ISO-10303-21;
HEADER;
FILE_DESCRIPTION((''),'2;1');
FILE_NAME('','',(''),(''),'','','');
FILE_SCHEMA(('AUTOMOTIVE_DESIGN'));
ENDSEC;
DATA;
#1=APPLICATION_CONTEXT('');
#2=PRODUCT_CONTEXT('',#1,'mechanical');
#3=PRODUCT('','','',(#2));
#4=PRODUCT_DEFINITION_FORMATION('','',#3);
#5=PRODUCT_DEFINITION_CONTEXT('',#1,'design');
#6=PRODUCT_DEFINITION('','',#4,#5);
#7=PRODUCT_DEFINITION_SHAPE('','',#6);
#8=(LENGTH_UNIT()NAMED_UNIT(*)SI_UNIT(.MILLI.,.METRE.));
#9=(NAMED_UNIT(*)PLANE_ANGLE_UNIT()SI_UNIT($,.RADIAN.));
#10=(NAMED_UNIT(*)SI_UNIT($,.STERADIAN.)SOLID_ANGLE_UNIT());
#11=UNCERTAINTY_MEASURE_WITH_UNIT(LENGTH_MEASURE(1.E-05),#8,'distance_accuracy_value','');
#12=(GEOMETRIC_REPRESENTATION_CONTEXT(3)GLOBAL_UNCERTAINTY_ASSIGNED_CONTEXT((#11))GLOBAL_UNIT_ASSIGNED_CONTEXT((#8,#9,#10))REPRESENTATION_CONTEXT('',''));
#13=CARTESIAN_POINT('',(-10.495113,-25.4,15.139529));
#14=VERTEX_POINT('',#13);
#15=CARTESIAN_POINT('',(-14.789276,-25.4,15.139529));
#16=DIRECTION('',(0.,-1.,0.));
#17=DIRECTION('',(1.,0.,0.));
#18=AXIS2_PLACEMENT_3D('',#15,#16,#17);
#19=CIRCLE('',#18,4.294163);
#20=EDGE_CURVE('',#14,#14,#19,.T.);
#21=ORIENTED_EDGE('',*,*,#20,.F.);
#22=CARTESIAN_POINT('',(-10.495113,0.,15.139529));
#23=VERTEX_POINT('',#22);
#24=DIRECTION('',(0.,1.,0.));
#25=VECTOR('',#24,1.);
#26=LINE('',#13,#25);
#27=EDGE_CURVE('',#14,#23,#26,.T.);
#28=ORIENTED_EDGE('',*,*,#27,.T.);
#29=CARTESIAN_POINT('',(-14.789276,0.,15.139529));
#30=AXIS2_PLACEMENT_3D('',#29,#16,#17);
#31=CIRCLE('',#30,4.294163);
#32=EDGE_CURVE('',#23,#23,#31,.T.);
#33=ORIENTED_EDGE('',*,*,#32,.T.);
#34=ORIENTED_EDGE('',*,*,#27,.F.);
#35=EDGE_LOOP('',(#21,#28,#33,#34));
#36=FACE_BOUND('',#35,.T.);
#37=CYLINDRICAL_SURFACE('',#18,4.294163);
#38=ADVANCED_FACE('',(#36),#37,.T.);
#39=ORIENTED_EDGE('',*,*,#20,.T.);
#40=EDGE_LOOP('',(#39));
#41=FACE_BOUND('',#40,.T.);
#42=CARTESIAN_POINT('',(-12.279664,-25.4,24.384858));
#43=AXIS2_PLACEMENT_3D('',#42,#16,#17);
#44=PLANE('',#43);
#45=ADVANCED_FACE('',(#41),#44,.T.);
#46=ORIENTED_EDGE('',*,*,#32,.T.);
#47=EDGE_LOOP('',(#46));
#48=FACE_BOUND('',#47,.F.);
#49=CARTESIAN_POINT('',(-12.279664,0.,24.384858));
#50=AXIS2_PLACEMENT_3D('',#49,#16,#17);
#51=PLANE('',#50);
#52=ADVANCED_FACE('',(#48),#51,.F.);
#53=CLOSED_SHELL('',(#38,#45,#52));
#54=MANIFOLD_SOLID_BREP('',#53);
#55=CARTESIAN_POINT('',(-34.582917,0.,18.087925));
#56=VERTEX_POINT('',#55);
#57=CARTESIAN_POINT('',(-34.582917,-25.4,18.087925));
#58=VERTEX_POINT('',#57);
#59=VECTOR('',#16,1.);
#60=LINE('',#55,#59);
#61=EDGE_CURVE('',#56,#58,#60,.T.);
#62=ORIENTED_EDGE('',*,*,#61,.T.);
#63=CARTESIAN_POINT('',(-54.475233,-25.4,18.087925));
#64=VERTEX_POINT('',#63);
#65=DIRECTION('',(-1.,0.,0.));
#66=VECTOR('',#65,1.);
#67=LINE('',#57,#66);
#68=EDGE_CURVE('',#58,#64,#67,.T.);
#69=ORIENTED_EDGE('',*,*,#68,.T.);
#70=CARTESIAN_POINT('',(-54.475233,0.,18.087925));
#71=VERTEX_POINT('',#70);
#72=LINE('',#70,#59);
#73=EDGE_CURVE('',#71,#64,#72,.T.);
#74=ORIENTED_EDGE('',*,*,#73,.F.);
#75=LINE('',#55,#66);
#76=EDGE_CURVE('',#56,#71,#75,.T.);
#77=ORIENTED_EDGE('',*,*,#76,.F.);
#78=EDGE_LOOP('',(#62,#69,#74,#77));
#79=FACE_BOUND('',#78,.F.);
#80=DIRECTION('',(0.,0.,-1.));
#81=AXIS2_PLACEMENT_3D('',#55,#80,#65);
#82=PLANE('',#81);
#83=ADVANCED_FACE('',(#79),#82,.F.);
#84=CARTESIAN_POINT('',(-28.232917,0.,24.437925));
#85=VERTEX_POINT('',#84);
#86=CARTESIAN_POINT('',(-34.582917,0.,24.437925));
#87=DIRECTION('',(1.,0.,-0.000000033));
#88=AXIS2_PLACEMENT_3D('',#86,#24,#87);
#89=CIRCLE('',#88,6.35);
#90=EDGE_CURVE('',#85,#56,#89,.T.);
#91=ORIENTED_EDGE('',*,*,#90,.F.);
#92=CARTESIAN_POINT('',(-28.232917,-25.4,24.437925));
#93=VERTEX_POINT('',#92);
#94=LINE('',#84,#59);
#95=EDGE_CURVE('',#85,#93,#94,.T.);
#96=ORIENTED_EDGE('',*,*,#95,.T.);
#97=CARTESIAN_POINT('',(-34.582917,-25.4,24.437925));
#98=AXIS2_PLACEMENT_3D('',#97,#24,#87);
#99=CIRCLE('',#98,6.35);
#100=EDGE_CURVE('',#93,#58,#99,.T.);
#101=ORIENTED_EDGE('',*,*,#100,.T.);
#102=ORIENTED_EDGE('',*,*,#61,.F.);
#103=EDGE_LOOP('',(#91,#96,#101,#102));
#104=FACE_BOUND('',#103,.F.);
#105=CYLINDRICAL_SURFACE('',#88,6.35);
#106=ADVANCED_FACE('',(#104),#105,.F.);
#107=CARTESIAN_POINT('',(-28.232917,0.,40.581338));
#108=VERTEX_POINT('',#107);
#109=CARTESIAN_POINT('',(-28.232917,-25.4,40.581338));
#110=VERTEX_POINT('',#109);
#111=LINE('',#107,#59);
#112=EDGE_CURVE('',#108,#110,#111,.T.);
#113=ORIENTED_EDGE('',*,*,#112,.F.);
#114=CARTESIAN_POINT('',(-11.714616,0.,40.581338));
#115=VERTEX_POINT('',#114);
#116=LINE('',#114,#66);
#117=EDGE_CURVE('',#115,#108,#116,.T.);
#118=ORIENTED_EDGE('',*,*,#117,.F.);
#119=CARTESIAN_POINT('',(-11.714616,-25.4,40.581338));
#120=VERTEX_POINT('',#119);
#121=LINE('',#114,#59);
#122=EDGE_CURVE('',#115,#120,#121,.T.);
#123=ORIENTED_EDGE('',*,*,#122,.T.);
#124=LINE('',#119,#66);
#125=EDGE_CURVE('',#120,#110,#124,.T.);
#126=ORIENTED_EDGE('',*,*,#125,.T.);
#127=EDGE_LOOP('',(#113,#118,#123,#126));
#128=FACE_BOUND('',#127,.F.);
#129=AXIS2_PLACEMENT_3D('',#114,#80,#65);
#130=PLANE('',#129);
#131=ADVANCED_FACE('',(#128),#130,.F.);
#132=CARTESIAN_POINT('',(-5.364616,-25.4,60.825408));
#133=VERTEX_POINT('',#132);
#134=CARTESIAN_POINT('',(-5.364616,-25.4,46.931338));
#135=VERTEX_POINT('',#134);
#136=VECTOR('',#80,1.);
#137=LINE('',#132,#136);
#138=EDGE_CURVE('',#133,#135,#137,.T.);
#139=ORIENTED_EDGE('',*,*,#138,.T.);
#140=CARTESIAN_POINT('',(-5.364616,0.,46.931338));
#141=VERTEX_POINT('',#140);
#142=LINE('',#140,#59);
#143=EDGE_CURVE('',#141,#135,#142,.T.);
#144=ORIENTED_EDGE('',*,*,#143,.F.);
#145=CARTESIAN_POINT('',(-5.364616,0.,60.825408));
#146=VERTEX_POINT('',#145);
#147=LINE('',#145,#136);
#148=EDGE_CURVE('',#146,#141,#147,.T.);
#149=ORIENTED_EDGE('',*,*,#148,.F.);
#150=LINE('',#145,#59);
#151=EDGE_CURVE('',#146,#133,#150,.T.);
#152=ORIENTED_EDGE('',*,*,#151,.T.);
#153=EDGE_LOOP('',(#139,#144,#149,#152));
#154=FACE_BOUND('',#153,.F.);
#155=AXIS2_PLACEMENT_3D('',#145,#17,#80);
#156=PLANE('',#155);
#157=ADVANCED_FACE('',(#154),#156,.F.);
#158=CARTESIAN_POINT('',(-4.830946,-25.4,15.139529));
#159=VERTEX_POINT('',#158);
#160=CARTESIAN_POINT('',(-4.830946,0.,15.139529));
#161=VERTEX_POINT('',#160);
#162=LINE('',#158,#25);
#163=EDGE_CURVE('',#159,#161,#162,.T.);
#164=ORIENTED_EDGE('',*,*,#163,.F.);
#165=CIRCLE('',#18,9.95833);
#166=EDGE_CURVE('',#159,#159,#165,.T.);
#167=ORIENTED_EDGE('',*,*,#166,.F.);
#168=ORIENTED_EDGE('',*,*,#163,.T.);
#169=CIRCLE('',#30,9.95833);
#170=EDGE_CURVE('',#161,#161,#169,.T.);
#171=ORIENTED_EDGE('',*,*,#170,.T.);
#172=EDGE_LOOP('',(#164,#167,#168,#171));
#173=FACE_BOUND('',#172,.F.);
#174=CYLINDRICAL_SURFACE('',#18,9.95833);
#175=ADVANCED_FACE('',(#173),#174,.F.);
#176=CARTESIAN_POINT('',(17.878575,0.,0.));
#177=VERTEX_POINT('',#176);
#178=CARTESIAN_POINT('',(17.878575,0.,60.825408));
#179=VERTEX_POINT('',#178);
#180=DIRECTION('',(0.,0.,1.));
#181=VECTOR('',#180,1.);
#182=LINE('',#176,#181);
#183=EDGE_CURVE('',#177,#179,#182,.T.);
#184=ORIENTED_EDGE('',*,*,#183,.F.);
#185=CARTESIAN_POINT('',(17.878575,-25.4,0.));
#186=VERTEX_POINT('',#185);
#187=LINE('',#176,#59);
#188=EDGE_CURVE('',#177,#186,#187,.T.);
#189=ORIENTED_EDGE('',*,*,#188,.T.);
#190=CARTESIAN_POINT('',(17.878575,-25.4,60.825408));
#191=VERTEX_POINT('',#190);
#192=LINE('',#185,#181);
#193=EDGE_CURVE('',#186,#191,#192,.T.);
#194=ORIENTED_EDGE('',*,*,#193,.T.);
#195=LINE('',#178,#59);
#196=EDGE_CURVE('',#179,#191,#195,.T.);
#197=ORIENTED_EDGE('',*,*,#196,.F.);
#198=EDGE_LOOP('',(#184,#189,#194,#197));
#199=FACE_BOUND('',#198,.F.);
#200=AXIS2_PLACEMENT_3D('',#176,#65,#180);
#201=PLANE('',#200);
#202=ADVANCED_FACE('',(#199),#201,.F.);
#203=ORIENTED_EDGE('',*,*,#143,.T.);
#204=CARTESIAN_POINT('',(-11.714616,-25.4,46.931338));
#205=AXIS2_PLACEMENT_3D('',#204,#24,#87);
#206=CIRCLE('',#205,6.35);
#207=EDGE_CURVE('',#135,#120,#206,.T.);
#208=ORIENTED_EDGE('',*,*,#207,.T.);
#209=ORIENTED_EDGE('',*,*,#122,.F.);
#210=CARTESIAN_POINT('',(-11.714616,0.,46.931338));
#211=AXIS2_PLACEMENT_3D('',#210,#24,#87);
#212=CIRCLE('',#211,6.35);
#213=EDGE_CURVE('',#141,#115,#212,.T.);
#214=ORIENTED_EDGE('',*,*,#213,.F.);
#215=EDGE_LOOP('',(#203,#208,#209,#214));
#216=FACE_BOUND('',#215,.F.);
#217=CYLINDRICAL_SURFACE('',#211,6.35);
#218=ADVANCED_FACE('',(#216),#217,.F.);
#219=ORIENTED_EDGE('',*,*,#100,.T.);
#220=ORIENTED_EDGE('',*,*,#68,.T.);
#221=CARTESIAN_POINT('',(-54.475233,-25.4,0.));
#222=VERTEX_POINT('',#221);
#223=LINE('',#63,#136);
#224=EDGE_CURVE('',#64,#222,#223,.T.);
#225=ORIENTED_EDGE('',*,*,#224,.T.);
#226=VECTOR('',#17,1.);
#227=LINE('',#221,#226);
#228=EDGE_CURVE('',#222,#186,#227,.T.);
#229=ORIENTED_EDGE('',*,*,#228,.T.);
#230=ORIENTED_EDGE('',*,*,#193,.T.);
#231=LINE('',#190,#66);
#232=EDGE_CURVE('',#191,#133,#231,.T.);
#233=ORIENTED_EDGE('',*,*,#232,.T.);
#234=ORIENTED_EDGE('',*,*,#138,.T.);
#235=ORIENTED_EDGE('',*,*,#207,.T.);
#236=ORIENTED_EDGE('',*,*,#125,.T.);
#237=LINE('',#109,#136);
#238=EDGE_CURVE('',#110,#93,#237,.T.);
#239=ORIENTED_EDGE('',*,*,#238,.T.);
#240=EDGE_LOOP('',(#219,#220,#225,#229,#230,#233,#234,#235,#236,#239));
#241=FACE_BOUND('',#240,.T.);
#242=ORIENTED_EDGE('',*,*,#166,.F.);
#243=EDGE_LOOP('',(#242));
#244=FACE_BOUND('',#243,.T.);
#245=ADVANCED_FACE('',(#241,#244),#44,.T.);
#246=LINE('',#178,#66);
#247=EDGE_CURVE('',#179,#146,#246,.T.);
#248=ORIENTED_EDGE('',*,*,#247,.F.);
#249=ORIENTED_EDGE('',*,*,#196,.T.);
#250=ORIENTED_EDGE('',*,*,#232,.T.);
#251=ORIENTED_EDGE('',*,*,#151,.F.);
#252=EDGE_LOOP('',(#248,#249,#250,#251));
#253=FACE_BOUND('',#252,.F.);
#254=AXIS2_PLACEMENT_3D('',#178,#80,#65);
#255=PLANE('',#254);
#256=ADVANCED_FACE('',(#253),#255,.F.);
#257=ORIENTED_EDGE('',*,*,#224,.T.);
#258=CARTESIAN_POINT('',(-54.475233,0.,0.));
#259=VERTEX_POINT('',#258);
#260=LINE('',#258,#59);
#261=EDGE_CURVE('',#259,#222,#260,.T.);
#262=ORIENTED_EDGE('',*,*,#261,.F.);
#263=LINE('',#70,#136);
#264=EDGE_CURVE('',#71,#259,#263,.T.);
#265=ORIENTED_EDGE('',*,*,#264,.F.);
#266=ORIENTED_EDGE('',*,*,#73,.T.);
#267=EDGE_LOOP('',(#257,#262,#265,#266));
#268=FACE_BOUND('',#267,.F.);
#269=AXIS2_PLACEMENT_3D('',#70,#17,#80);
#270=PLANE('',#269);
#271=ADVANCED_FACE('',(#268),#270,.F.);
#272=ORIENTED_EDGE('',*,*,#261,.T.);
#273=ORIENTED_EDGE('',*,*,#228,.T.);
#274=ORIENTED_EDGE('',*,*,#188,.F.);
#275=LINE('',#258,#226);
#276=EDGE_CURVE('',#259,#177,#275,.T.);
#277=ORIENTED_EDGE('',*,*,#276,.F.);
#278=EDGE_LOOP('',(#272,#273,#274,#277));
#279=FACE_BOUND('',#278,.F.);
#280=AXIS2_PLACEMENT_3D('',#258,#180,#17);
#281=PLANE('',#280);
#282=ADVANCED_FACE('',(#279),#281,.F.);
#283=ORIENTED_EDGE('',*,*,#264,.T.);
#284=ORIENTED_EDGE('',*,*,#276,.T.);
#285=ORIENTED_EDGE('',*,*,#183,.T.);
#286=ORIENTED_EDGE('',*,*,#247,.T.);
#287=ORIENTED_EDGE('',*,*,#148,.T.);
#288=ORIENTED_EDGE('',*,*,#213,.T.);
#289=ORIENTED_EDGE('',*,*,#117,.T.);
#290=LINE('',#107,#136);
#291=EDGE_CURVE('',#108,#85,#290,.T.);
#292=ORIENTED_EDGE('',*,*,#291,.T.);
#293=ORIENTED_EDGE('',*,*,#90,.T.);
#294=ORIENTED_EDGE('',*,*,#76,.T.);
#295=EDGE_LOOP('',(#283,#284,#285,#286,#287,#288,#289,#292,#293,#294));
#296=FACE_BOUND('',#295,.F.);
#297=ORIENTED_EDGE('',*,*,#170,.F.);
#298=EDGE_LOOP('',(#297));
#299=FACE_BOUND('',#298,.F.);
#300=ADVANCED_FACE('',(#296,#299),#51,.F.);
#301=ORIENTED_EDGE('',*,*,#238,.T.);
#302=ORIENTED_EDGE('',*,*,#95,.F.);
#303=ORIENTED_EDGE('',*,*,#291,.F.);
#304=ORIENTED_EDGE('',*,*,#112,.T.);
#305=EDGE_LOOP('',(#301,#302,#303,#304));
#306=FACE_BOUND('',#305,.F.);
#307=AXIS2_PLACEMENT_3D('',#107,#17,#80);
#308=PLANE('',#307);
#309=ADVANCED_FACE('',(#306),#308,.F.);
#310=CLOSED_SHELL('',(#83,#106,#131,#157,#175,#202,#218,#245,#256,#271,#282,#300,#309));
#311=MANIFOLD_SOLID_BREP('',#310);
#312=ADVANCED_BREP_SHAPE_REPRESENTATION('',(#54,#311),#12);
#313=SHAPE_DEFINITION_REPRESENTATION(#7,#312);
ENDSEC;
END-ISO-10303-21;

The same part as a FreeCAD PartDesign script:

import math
import FreeCAD as App
import Part
import Sketcher

V = App.Vector
Q = App.Units.Quantity

doc = App.newDocument("Part")
body = doc.addObject("PartDesign::Body", "Body")
body.AllowCompound = True

sketch1 = doc.addObject("Sketcher::SketchObject", "Sketch")
body.addObject(sketch1)
sketch1.AttachmentSupport = (doc.XZ_Plane, [""])
sketch1.MapMode = "FlatFace"
sketch1.addGeometry([
    Part.LineSegment(V(-54, 18, 0), V(-54, 0, 0)),
    Part.LineSegment(V(-54, 0, 0), V(18, 0, 0)),
    Part.LineSegment(V(18, 0, 0), V(18, 61, 0)),
    Part.LineSegment(V(18, 61, 0), V(-5, 61, 0)),
    Part.LineSegment(V(-5, 61, 0), V(-5, 47, 0)),
    Part.ArcOfCircle(Part.Circle(V(-12, 47, 0), V(0, 0, 1), 6), math.radians(-90), math.radians(0)),
    Part.LineSegment(V(-12, 41, 0), V(-28, 41, 0)),
    Part.LineSegment(V(-28, 41, 0), V(-28, 24, 0)),
    Part.ArcOfCircle(Part.Circle(V(-35, 24, 0), V(0, 0, 1), 6), math.radians(-90), math.radians(0)),
    Part.LineSegment(V(-35, 18, 0), V(-54, 18, 0)),
], False)
sketch1.addConstraint([
    Sketcher.Constraint("Coincident", 0, 2, 1, 1),
    Sketcher.Constraint("Coincident", 1, 2, 2, 1),
    Sketcher.Constraint("Coincident", 2, 2, 3, 1),
    Sketcher.Constraint("Coincident", 3, 2, 4, 1),
    Sketcher.Constraint("Tangent", 4, 2, 5, 2),
    Sketcher.Constraint("Tangent", 5, 1, 6, 1),
    Sketcher.Constraint("Coincident", 6, 2, 7, 1),
    Sketcher.Constraint("Tangent", 7, 2, 8, 2),
    Sketcher.Constraint("Tangent", 8, 1, 9, 1),
    Sketcher.Constraint("Coincident", 9, 2, 0, 1),
    Sketcher.Constraint("Vertical", 0),
    Sketcher.Constraint("Horizontal", 1),
    Sketcher.Constraint("Vertical", 2),
    Sketcher.Constraint("Horizontal", 3),
    Sketcher.Constraint("Vertical", 4),
    Sketcher.Constraint("Horizontal", 6),
    Sketcher.Constraint("Vertical", 7),
    Sketcher.Constraint("Horizontal", 9),
    Sketcher.Constraint("Equal", 5, 8),
    Sketcher.Constraint("PointOnObject", 0, 2, -1),
    Sketcher.Constraint("Radius", 5, Q("0.25 in")),
    Sketcher.Constraint("DistanceX", 6, 2, 6, 1, Q("16.518301 mm")),
    Sketcher.Constraint("DistanceX", 1, 1, 1, 2, Q("72.353808 mm")),
    Sketcher.Constraint("DistanceX", 3, 2, 3, 1, Q("23.243191 mm")),
    Sketcher.Constraint("DistanceY", 2, 1, 2, 2, Q("60.825408 mm")),
    Sketcher.Constraint("DistanceY", 4, 2, 4, 1, Q("13.89407 mm")),
    Sketcher.Constraint("DistanceY", 0, 2, 0, 1, Q("18.087925 mm")),
    Sketcher.Constraint("DistanceX", 5, 3, -1, 1, Q("11.714616 mm")),
])
pad1 = doc.addObject("PartDesign::Pad", "Pad")
body.addObject(pad1)
pad1.Profile = sketch1
pad1.Length = Q("1 in")

sketch2 = doc.addObject("Sketcher::SketchObject", "Sketch001")
body.addObject(sketch2)
sketch2.AttachmentSupport = (doc.XZ_Plane, [""])
sketch2.MapMode = "FlatFace"
sketch2.AttachmentOffset = App.Placement(V(0, 0, 1 * 25.4), App.Rotation())
sketch2.addGeometry([
    Part.Circle(V(-14.8, 15.1, 0), V(0, 0, 1), 10),
    Part.Circle(V(-14.8, 15.1, 0), V(0, 0, 1), 4.3),
], False)
sketch2.addConstraint([
    Sketcher.Constraint("Coincident", 1, 3, 0, 3),
    Sketcher.Constraint("Diameter", 0, Q("19.91666 mm")),
    Sketcher.Constraint("Diameter", 1, Q("8.588326 mm")),
    Sketcher.Constraint("DistanceY", -1, 1, 0, 3, Q("15.139529 mm")),
    Sketcher.Constraint("DistanceX", 0, 3, -1, 1, Q("14.789276 mm")),
])
pocket1 = doc.addObject("PartDesign::Pocket", "Pocket")
body.addObject(pocket1)
pocket1.Profile = sketch2
pocket1.Length = 45.6

doc.recompute()
